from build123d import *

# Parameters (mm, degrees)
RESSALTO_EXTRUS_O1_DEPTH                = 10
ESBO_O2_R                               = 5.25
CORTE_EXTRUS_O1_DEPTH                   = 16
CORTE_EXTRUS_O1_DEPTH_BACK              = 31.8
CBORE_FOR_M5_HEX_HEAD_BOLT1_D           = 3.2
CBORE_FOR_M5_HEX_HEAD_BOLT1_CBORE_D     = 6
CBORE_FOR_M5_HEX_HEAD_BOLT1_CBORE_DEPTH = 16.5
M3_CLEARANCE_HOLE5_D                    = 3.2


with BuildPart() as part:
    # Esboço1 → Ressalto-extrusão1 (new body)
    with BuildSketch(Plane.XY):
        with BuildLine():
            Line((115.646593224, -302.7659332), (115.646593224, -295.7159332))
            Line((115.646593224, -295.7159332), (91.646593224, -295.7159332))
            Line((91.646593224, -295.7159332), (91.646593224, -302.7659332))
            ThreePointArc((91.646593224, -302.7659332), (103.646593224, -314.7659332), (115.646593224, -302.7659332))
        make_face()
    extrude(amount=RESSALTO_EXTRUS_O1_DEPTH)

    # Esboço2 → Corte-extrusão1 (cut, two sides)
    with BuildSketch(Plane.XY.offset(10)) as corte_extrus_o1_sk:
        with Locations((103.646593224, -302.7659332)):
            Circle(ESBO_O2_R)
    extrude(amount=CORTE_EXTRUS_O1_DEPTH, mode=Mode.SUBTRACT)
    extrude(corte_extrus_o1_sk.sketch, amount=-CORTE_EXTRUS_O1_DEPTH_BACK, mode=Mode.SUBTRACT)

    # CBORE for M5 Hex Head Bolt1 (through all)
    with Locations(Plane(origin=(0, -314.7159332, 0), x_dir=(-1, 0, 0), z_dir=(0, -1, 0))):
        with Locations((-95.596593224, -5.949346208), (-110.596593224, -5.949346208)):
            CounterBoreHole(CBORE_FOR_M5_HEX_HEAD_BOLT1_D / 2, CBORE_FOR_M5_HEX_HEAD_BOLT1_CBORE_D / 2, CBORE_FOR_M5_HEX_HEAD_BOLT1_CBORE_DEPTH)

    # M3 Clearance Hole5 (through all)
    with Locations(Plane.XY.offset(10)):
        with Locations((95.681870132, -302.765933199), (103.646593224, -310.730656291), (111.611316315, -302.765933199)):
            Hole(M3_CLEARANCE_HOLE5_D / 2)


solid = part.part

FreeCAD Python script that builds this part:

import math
import FreeCAD as App
import Part
import Sketcher

V = App.Vector
Q = App.Units.Quantity

doc = App.newDocument("Part")
body = doc.addObject("PartDesign::Body", "Body")

# Sketch on XY plane
sketch1 = body.newObject("Sketcher::SketchObject", "Sketch")
sketch1.AttachmentSupport = (doc.getObject("XY_Plane"), [""])
sketch1.MapMode = "FlatFace"
sketch1.addGeometry([
    Part.LineSegment(V(115.646593, -302.765933, 0), V(115.646593, -295.715933, 0)),
    Part.LineSegment(V(115.646593, -295.715933, 0), V(91.646593, -295.715933, 0)),
    Part.LineSegment(V(91.646593, -295.715933, 0), V(91.646593, -302.765933, 0)),
    Part.ArcOfCircle(Part.Circle(V(103.646593, -302.765933, 0), V(0, 0, 1), 12), math.radians(180), math.radians(360)),
], False)
sketch1.addConstraint([
    Sketcher.Constraint("Coincident", 0, 2, 1, 1),
    Sketcher.Constraint("Coincident", 1, 2, 2, 1),
    Sketcher.Constraint("Tangent", 2, 2, 3, 1),
    Sketcher.Constraint("Tangent", 3, 2, 0, 1),
    Sketcher.Constraint("Vertical", 0),
    Sketcher.Constraint("Horizontal", 1),
    Sketcher.Constraint("Vertical", 2),
    Sketcher.Constraint("Radius", 3, Q("12 mm")),
    Sketcher.Constraint("DistanceY", 0, 1, 0, 2, Q("7.05 mm")),
    Sketcher.Constraint("DistanceX", -1, 1, 3, 3, Q("103.646593 mm")),
    Sketcher.Constraint("DistanceY", 3, 3, -1, 1, Q("302.765933 mm")),
])
pad1 = body.newObject("PartDesign::Pad", "Pad")
pad1.Profile = sketch1
pad1.Length = 10

# Sketch on XY plane
sketch2 = body.newObject("Sketcher::SketchObject", "Sketch001")
sketch2.AttachmentSupport = (doc.getObject("XY_Plane"), [""])
sketch2.MapMode = "FlatFace"
sketch2.AttachmentOffset = App.Placement(V(0, 0, 10), App.Rotation())
sketch2.addGeometry(Part.Circle(V(103.646593, -302.765933, 0), V(0, 0, 1), 5.25), False)
sketch2.addConstraint([
    Sketcher.Constraint("Diameter", 0, Q("10.5 mm")),
    Sketcher.Constraint("DistanceX", -1, 1, 0, 3, Q("103.646593 mm")),
    Sketcher.Constraint("DistanceY", 0, 3, -1, 1, Q("302.765933 mm")),
])
pocket1 = body.newObject("PartDesign::Pocket", "Pocket")
pocket1.Profile = sketch2
pocket1.Type = "ThroughAll"
pocket1.Midplane = True

# Sketch on XZ plane
sketch3 = body.newObject("Sketcher::SketchObject", "Sketch002")
sketch3.AttachmentSupport = (doc.getObject("XZ_Plane"), [""])
sketch3.MapMode = "FlatFace"
sketch3.AttachmentOffset = App.Placement(V(0, 0, 314.715933), App.Rotation())
sketch3.addGeometry([
    Part.Circle(V(95.596593, 5.949346, 0), V(0, 0, 1), 1.6),
    Part.Circle(V(110.596593, 5.949346, 0), V(0, 0, 1), 1.6),
], False)
sketch3.addConstraint([
    Sketcher.Constraint("Equal", 0, 1),
    Sketcher.Constraint("Horizontal", 0, 3, 1, 3),
    Sketcher.Constraint("Diameter", 0, Q("3.2 mm")),
    Sketcher.Constraint("DistanceX", 0, 3, 1, 3, Q("15 mm")),
    Sketcher.Constraint("DistanceX", -1, 1, 0, 3, Q("95.596593 mm")),
    Sketcher.Constraint("DistanceY", -1, 1, 0, 3, Q("5.949346 mm")),
])
doc.recompute()
hole = body.newObject("PartDesign::Hole", "Hole")
hole.Profile = sketch3
hole.ThreadType = "None"
hole.Diameter = 3.2
hole.DepthType = "ThroughAll"
hole.HoleCutType = "Counterbore"
hole.HoleCutDiameter = 6
hole.HoleCutDepth = 16.5

# Sketch on XY plane
sketch4 = body.newObject("Sketcher::SketchObject", "Sketch003")
sketch4.AttachmentSupport = (doc.getObject("XY_Plane"), [""])
sketch4.MapMode = "FlatFace"
sketch4.AttachmentOffset = App.Placement(V(0, 0, 10), App.Rotation())
sketch4.addGeometry([
    Part.Circle(V(95.68187, -302.765933, 0), V(0, 0, 1), 1.6),
    Part.Circle(V(103.646593, -310.730656, 0), V(0, 0, 1), 1.6),
    Part.Circle(V(111.611316, -302.765933, 0), V(0, 0, 1), 1.6),
], False)
sketch4.addConstraint([
    Sketcher.Constraint("Equal", 0, 1),
    Sketcher.Constraint("Equal", 1, 2),
    Sketcher.Constraint("Horizontal", 0, 3, 2, 3),
    Sketcher.Constraint("Diameter", 0, Q("3.2 mm")),
    Sketcher.Constraint("DistanceX", -1, 1, 0, 3, Q("95.68187 mm")),
    Sketcher.Constraint("DistanceY", 0, 3, -1, 1, Q("302.765933 mm")),
    Sketcher.Constraint("DistanceX", -1, 1, 1, 3, Q("103.646593 mm")),
    Sketcher.Constraint("DistanceY", 1, 3, -1, 1, Q("310.730656 mm")),
    Sketcher.Constraint("DistanceX", -1, 1, 2, 3, Q("111.611316 mm")),
])
doc.recompute()
hole2 = body.newObject("PartDesign::Hole", "Hole001")
hole2.Profile = sketch4
hole2.ThreadType = "None"
hole2.Diameter = 3.2
hole2.DepthType = "ThroughAll"

doc.recompute()
